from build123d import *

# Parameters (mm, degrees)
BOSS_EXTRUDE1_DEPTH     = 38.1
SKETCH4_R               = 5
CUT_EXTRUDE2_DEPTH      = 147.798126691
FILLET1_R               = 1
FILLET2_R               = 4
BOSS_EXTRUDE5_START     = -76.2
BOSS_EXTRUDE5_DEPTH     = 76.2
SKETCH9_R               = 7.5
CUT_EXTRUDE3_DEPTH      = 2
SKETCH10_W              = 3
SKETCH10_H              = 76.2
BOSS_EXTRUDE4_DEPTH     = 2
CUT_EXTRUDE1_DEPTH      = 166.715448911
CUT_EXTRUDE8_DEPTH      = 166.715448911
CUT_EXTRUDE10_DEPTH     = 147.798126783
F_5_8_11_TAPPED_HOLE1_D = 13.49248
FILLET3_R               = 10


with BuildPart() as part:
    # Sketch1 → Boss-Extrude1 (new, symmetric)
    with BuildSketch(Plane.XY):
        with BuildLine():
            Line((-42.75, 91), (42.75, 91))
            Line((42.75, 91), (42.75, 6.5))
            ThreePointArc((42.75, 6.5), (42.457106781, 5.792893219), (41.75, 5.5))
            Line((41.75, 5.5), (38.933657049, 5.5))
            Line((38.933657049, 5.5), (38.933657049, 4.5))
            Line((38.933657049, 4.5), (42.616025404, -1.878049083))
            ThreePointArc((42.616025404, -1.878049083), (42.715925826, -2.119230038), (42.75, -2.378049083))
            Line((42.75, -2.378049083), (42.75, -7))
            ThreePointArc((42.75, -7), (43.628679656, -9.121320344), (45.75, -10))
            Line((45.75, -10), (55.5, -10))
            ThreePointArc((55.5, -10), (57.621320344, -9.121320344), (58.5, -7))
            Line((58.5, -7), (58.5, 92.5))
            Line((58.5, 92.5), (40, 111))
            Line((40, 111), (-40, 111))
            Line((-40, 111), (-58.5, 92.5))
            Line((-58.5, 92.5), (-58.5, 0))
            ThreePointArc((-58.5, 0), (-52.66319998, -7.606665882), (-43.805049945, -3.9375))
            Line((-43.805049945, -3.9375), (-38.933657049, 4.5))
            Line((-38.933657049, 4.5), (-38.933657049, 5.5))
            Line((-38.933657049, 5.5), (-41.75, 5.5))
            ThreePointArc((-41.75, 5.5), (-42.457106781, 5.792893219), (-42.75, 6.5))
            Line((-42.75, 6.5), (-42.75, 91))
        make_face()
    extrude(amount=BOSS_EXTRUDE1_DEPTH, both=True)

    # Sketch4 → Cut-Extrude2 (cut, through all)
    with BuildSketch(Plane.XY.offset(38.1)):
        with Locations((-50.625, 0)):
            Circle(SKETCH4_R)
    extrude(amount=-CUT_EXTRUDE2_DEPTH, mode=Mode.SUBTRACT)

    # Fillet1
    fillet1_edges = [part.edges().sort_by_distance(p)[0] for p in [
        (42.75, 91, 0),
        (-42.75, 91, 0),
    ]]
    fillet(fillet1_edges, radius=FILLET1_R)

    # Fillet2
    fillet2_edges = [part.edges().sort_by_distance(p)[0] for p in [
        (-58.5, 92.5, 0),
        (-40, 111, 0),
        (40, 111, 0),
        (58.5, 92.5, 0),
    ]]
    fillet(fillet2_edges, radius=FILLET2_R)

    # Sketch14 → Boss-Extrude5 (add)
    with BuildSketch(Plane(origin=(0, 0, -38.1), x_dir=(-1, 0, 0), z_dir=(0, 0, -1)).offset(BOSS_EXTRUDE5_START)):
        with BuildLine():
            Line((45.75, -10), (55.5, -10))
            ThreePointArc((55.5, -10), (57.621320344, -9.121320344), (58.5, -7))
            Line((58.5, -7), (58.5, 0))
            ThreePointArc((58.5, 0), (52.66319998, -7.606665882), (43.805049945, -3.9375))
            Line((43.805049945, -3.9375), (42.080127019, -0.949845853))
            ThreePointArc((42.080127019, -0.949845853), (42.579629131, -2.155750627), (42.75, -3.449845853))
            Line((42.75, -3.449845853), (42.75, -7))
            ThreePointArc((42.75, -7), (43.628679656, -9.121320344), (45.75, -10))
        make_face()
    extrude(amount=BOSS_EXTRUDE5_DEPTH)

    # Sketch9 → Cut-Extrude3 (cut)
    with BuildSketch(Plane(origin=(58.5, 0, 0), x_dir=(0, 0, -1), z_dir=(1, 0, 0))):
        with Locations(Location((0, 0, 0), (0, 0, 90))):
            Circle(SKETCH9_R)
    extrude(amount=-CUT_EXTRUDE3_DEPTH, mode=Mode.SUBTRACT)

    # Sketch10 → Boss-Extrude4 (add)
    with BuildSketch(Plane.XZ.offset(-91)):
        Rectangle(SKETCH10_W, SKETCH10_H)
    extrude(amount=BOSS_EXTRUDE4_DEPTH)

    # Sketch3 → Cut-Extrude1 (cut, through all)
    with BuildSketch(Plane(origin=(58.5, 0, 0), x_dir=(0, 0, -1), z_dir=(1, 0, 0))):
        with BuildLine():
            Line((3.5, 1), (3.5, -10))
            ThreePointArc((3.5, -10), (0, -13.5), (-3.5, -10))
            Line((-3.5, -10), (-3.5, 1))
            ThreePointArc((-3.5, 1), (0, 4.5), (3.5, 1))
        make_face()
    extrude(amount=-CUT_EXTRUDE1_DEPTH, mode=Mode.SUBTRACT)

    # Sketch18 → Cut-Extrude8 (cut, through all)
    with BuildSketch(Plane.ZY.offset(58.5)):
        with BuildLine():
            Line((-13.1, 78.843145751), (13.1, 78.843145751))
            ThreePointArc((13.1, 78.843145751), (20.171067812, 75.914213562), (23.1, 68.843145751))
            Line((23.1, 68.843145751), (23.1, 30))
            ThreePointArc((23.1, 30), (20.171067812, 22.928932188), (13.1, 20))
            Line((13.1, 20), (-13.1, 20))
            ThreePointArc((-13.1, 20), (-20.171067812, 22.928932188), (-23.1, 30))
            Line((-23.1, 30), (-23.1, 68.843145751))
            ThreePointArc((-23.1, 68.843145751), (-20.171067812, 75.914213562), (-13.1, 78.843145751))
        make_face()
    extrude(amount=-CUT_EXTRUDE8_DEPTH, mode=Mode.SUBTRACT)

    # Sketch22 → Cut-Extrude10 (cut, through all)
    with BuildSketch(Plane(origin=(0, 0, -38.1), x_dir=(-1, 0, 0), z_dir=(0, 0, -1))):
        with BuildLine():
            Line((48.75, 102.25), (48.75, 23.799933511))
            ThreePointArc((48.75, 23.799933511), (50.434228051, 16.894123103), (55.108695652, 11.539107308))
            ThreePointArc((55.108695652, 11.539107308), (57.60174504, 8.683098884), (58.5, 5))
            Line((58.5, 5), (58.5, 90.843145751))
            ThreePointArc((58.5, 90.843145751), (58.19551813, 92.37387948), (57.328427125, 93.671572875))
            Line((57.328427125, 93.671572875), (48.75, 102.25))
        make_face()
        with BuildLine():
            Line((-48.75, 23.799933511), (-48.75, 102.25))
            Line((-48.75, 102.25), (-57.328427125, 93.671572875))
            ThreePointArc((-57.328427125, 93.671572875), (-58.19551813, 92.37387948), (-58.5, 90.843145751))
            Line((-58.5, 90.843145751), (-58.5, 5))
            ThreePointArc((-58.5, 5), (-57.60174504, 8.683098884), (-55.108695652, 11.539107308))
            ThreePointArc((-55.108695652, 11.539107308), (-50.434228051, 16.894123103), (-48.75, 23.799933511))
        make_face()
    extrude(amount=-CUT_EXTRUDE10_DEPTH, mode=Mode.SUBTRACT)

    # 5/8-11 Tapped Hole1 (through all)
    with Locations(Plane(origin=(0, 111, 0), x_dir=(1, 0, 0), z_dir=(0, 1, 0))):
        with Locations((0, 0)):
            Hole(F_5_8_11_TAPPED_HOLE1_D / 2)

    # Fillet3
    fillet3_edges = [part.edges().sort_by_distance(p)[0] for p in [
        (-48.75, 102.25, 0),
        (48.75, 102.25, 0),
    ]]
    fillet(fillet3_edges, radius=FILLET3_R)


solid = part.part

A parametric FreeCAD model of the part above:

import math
import FreeCAD as App
import Part
import Sketcher

V = App.Vector
Q = App.Units.Quantity


def edges_at(feature, points):
    """Names of the edges that pass closest to the given points."""
    edges = feature.Shape.Edges
    near = lambda p: min(range(len(edges)), key=lambda i: edges[i].distToShape(Part.Vertex(*p))[0])
    return sorted({f"Edge{near(p) + 1}" for p in points})

doc = App.newDocument("Part")
params = doc.addObject("Spreadsheet::Sheet", "Params")
for row, (alias, value) in enumerate([
    ("sketch1_radius", "1 mm"),
    ("sketch1_radius2", "3 mm"),
    ("sketch1_width", "80 mm"),
    ("sketch1_height", "1 mm"),
    ("sketch1_width2", "85.5 mm"),
    ("pad1_length", "76.2 mm"),
    ("sketch2_diameter", "10 mm"),
    ("fillet_radius", "1 mm"),
    ("fillet2_radius", "4 mm"),
    ("sketch3_radius", "3 mm"),
    ("sketch3_radius2", "5 mm"),
    ("sketch3_height", "7 mm"),
    ("sketch3_width", "9.75 mm"),
    ("pad2_length", "76.2 mm"),
    ("sketch4_diameter", "15 mm"),
    ("pocket2_length", "2 mm"),
    ("sketch5_width", "3 mm"),
    ("sketch5_height", "76.2 mm"),
    ("pad3_length", "2 mm"),
    ("sketch6_radius", "3.5 mm"),
    ("sketch6_width", "11 mm"),
    ("sketch7_radius", "10 mm"),
    ("sketch7_height", "26.2 mm"),
    ("sketch8_radius", "15 mm"),
    ("sketch8_radius2", "8 mm"),
    ("sketch8_radius3", "4 mm"),
    ("hole_diameter", "13.49248 mm"),
    ("fillet3_radius", "10 mm"),
], start=1):
    params.set(f"A{row}", alias)
    params.set(f"B{row}", "=" + value)
    params.setAlias(f"B{row}", alias)

body = doc.addObject("PartDesign::Body", "Body")

# Sketch on XY plane
sketch1 = doc.addObject("Sketcher::SketchObject", "Sketch")
body.addObject(sketch1)
sketch1.AttachmentSupport = (doc.XY_Plane, [""])
sketch1.MapMode = "FlatFace"
sketch1.addGeometry(Part.LineSegment(V(-42.8, 91, 0), V(42.8, 91, 0)), False)
sketch1.addGeometry(Part.LineSegment(V(42.8, 91, 0), V(42.8, 6.5, 0)), False)
sketch1.addGeometry(Part.ArcOfCircle(Part.Circle(V(41.7, 6.5, 0), V(0, 0, 1), 1), math.radians(-90), math.radians(0)), False)
sketch1.addGeometry(Part.LineSegment(V(41.8, 5.5, 0), V(38.9, 5.5, 0)), False)
sketch1.addGeometry(Part.LineSegment(V(38.9, 5.5, 0), V(38.9, 4.5, 0)), False)
sketch1.addGeometry(Part.LineSegment(V(38.9, 4.5, 0), V(42.6, -1.9, 0)), False)
sketch1.addGeometry(Part.ArcOfCircle(Part.Circle(V(41.7, -2.4, 0), V(0, 0, 1), 1), math.radians(0), math.radians(30)), False)
sketch1.addGeometry(Part.LineSegment(V(42.8, -2.4, 0), V(42.8, -7, 0)), False)
sketch1.addGeometry(Part.ArcOfCircle(Part.Circle(V(45.7, -7, 0), V(0, 0, 1), 3), math.radians(180), math.radians(270)), False)
sketch1.addGeometry(Part.LineSegment(V(45.8, -10, 0), V(55.5, -10, 0)), False)
sketch1.addGeometry(Part.ArcOfCircle(Part.Circle(V(55.5, -7, 0), V(0, 0, 1), 3), math.radians(-90), math.radians(0)), False)
sketch1.addGeometry(Part.LineSegment(V(58.5, -7, 0), V(58.5, 92.5, 0)), False)
sketch1.addGeometry(Part.LineSegment(V(58.5, 92.5, 0), V(40, 111, 0)), False)
sketch1.addGeometry(Part.LineSegment(V(40, 111, 0), V(-40, 111, 0)), False)
sketch1.addGeometry(Part.LineSegment(V(-40, 111, 0), V(-58.5, 92.5, 0)), False)
sketch1.addGeometry(Part.LineSegment(V(-58.5, 92.5, 0), V(-58.5, 0, 0)), False)
sketch1.addGeometry(Part.ArcOfCircle(Part.Circle(V(-50.6, 0, 0), V(0, 0, 1), 7.9), math.radians(180), math.radians(330)), False)
sketch1.addGeometry(Part.LineSegment(V(-43.8, -3.9, 0), V(-38.9, 4.5, 0)), False)
sketch1.addGeometry(Part.LineSegment(V(-38.9, 4.5, 0), V(-38.9, 5.5, 0)), False)
sketch1.addGeometry(Part.LineSegment(V(-38.9, 5.5, 0), V(-41.8, 5.5, 0)), False)
sketch1.addGeometry(Part.ArcOfCircle(Part.Circle(V(-41.7, 6.5, 0), V(0, 0, 1), 1), math.radians(-180), math.radians(-90)), False)
sketch1.addGeometry(Part.LineSegment(V(-42.8, 6.5, 0), V(-42.8, 91, 0)), False)
sketch1.addConstraint(Sketcher.Constraint("Coincident", 0, 2, 1, 1))
sketch1.addConstraint(Sketcher.Constraint("Tangent", 1, 2, 2, 2))
sketch1.addConstraint(Sketcher.Constraint("Tangent", 2, 1, 3, 1))
sketch1.addConstraint(Sketcher.Constraint("Coincident", 3, 2, 4, 1))
sketch1.addConstraint(Sketcher.Constraint("Coincident", 4, 2, 5, 1))
sketch1.addConstraint(Sketcher.Constraint("Tangent", 5, 2, 6, 2))
sketch1.addConstraint(Sketcher.Constraint("Tangent", 6, 1, 7, 1))
sketch1.addConstraint(Sketcher.Constraint("Tangent", 7, 2, 8, 1))
sketch1.addConstraint(Sketcher.Constraint("Tangent", 8, 2, 9, 1))
sketch1.addConstraint(Sketcher.Constraint("Tangent", 9, 2, 10, 1))
sketch1.addConstraint(Sketcher.Constraint("Tangent", 10, 2, 11, 1))
sketch1.addConstraint(Sketcher.Constraint("Coincident", 11, 2, 12, 1))
sketch1.addConstraint(Sketcher.Constraint("Coincident", 12, 2, 13, 1))
sketch1.addConstraint(Sketcher.Constraint("Coincident", 13, 2, 14, 1))
sketch1.addConstraint(Sketcher.Constraint("Coincident", 14, 2, 15, 1))
sketch1.addConstraint(Sketcher.Constraint("Tangent", 15, 2, 16, 1))
sketch1.addConstraint(Sketcher.Constraint("Tangent", 16, 2, 17, 1))
sketch1.addConstraint(Sketcher.Constraint("Coincident", 17, 2, 18, 1))
sketch1.addConstraint(Sketcher.Constraint("Coincident", 18, 2, 19, 1))
sketch1.addConstraint(Sketcher.Constraint("Tangent", 19, 2, 20, 2))
sketch1.addConstraint(Sketcher.Constraint("Tangent", 20, 1, 21, 1))
sketch1.addConstraint(Sketcher.Constraint("Coincident", 21, 2, 0, 1))
sketch1.addConstraint(Sketcher.Constraint("Horizontal", 0))
sketch1.addConstraint(Sketcher.Constraint("Vertical", 1))
sketch1.addConstraint(Sketcher.Constraint("Horizontal", 3))
sketch1.addConstraint(Sketcher.Constraint("Vertical", 4))
sketch1.addConstraint(Sketcher.Constraint("Vertical", 7))
sketch1.addConstraint(Sketcher.Constraint("Horizontal", 9))
sketch1.addConstraint(Sketcher.Constraint("Vertical", 11))
sketch1.addConstraint(Sketcher.Constraint("Horizontal", 13))
sketch1.addConstraint(Sketcher.Constraint("Vertical", 15))
sketch1.addConstraint(Sketcher.Constraint("Vertical", 18))
sketch1.addConstraint(Sketcher.Constraint("Horizontal", 19))
sketch1.addConstraint(Sketcher.Constraint("Vertical", 21))
sketch1.addConstraint(Sketcher.Constraint("Equal", 2, 6))
sketch1.addConstraint(Sketcher.Constraint("Equal", 8, 10))
sketch1.addConstraint(Sketcher.Constraint("Equal", 6, 20))
sketch1.addConstraint(Sketcher.Constraint("Symmetric", 2, 3, 20, 3, -2))
sketch1.addConstraint(Sketcher.Constraint("Symmetric", 11, 2, 14, 2, -2))
sketch1.addConstraint(Sketcher.Constraint("Symmetric", 4, 2, 17, 2, -2))
sketch1.addConstraint(Sketcher.Constraint("PointOnObject", 16, 3, -1))
sketch1.addConstraint(Sketcher.Constraint("Perpendicular", 12, 14))
sketch1.addConstraint(Sketcher.Constraint("Vertical", 2, 3, 6, 3))
sketch1.addConstraint(Sketcher.Constraint("Equal", 12, 14))
sketch1.addConstraint(Sketcher.Constraint("Radius", 2, 1.0))
sketch1.addConstraint(Sketcher.Constraint("Radius", 8, 3.0))
sketch1.addConstraint(Sketcher.Constraint("DistanceX", 13, 2, 13, 1, 80.0))
sketch1.addConstraint(Sketcher.Constraint("DistanceY", 4, 2, 4, 1, 1.0))
sketch1.addConstraint(Sketcher.Constraint("Angle", 5, Q("-60 deg")))
sketch1.addConstraint(Sketcher.Constraint("Angle", 17, Q("60 deg")))
sketch1.addConstraint(Sketcher.Constraint("DistanceX", 0, 1, 0, 2, 85.5))
sketch1.addConstraint(Sketcher.Constraint("DistanceY", 1, 2, 1, 1, 84.5))
sketch1.addConstraint(Sketcher.Constraint("DistanceY", 11, 1, 11, 2, 99.5))
sketch1.addConstraint(Sketcher.Constraint("DistanceY", 15, 2, 15, 1, 92.5))
sketch1.addConstraint(Sketcher.Constraint("DistanceY", -1, 1, 0, 2, 91.0))
sketch1.addConstraint(Sketcher.Constraint("DistanceY", -1, 1, 12, 2, 111.0))
sketch1.addConstraint(Sketcher.Constraint("Radius", 16, 7.875))
sketch1.setExpression("Constraints[44]", "Params.sketch1_radius")
sketch1.setExpression("Constraints[45]", "Params.sketch1_radius2")
sketch1.setExpression("Constraints[46]", "Params.sketch1_width")
sketch1.setExpression("Constraints[47]", "Params.sketch1_height")
sketch1.setExpression("Constraints[50]", "Params.sketch1_width2")
pad1 = doc.addObject("PartDesign::Pad", "Pad")
body.addObject(pad1)
pad1.Profile = sketch1
pad1.setExpression("Length", "Params.pad1_length")
pad1.Midplane = True

# Sketch on XY plane
sketch2 = doc.addObject("Sketcher::SketchObject", "Sketch001")
body.addObject(sketch2)
sketch2.AttachmentSupport = (doc.XY_Plane, [""])
sketch2.MapMode = "FlatFace"
sketch2.AttachmentOffset = App.Placement(V(0, 0, 38.1), App.Rotation())
sketch2.addGeometry(Part.Circle(V(-51, 0, 0), V(0, 0, 1), 5), False)
sketch2.addConstraint(Sketcher.Constraint("PointOnObject", 0, 3, -1))
sketch2.addConstraint(Sketcher.Constraint("Diameter", 0, 10.0))
sketch2.addConstraint(Sketcher.Constraint("DistanceX", 0, 3, -1, 1, 50.625))
sketch2.setExpression("Constraints[1]", "Params.sketch2_diameter")
pocket1 = doc.addObject("PartDesign::Pocket", "Pocket")
body.addObject(pocket1)
pocket1.Profile = sketch2
pocket1.Type = "ThroughAll"
doc.recompute()

fillet = doc.addObject("PartDesign::Fillet", "Fillet")
body.addObject(fillet)
fillet.Base = (pocket1, edges_at(pocket1, [(42.75, 91, 0), (-42.75, 91, 0)]))
fillet.setExpression("Radius", "Params.fillet_radius")
doc.recompute()

fillet2 = doc.addObject("PartDesign::Fillet", "Fillet001")
body.addObject(fillet2)
fillet2.Base = (fillet, edges_at(fillet, [
    (-58.5, 92.5, 0),
    (-40, 111, 0),
    (40, 111, 0),
    (58.5, 92.5, 0),
]))
fillet2.setExpression("Radius", "Params.fillet2_radius")

# Sketch on XY plane
sketch3 = doc.addObject("Sketcher::SketchObject", "Sketch002")
body.addObject(sketch3)
sketch3.AttachmentSupport = (doc.XY_Plane, [""])
sketch3.MapMode = "FlatFace"
sketch3.AttachmentOffset = App.Placement(V(0, 0, 38.1), App.Rotation())
sketch3.addGeometry(Part.LineSegment(V(-45.8, -10, 0), V(-55.5, -10, 0)), False)
sketch3.addGeometry(Part.ArcOfCircle(Part.Circle(V(-55.5, -7, 0), V(0, 0, 1), 3), math.radians(180), math.radians(270)), False)
sketch3.addGeometry(Part.LineSegment(V(-58.5, -7, 0), V(-58.5, 0, 0)), False)
sketch3.addGeometry(Part.ArcOfCircle(Part.Circle(V(-50.6, 0, 0), V(0, 0, 1), 7.9), math.radians(180), math.radians(330)), False)
sketch3.addGeometry(Part.LineSegment(V(-43.8, -3.9, 0), V(-42.1, -0.9, 0)), False)
sketch3.addGeometry(Part.ArcOfCircle(Part.Circle(V(-37.7, -3.4, 0), V(0, 0, 1), 5), math.radians(150), math.radians(180)), False)
sketch3.addGeometry(Part.LineSegment(V(-42.8, -3.4, 0), V(-42.8, -7, 0)), False)
sketch3.addGeometry(Part.ArcOfCircle(Part.Circle(V(-45.7, -7, 0), V(0, 0, 1), 3), math.radians(-90), math.radians(0)), False)
sketch3.addConstraint(Sketcher.Constraint("Tangent", 0, 2, 1, 2))
sketch3.addConstraint(Sketcher.Constraint("Tangent", 1, 1, 2, 1))
sketch3.addConstraint(Sketcher.Constraint("Tangent", 2, 2, 3, 1))
sketch3.addConstraint(Sketcher.Constraint("Tangent", 3, 2, 4, 1))
sketch3.addConstraint(Sketcher.Constraint("Tangent", 4, 2, 5, 1))
sketch3.addConstraint(Sketcher.Constraint("Tangent", 5, 2, 6, 1))
sketch3.addConstraint(Sketcher.Constraint("Tangent", 6, 2, 7, 2))
sketch3.addConstraint(Sketcher.Constraint("Tangent", 7, 1, 0, 1))
sketch3.addConstraint(Sketcher.Constraint("Horizontal", 0))
sketch3.addConstraint(Sketcher.Constraint("Vertical", 2))
sketch3.addConstraint(Sketcher.Constraint("Vertical", 6))
sketch3.addConstraint(Sketcher.Constraint("Equal", 1, 7))
sketch3.addConstraint(Sketcher.Constraint("PointOnObject", 3, 3, -1))
sketch3.addConstraint(Sketcher.Constraint("Radius", 1, 3.0))
sketch3.addConstraint(Sketcher.Constraint("Radius", 5, 5.0))
sketch3.addConstraint(Sketcher.Constraint("DistanceY", 2, 1, 2, 2, 7.0))
sketch3.addConstraint(Sketcher.Constraint("Angle", 4, Q("60 deg")))
sketch3.addConstraint(Sketcher.Constraint("Radius", 3, 7.875))
sketch3.addConstraint(Sketcher.Constraint("DistanceX", 0, 2, 0, 1, 9.75))
sketch3.addConstraint(Sketcher.Constraint("DistanceX", 1, 3, -1, 1, 55.5))
sketch3.setExpression("Constraints[13]", "Params.sketch3_radius")
sketch3.setExpression("Constraints[14]", "Params.sketch3_radius2")
sketch3.setExpression("Constraints[15]", "Params.sketch3_height")
sketch3.setExpression("Constraints[18]", "Params.sketch3_width")
pad2 = doc.addObject("PartDesign::Pad", "Pad001")
body.addObject(pad2)
pad2.Profile = sketch3
pad2.setExpression("Length", "Params.pad2_length")
pad2.Reversed = True

# Sketch on YZ plane
sketch4 = doc.addObject("Sketcher::SketchObject", "Sketch003")
body.addObject(sketch4)
sketch4.AttachmentSupport = (doc.YZ_Plane, [""])
sketch4.MapMode = "FlatFace"
sketch4.AttachmentOffset = App.Placement(V(0, 0, 58.5), App.Rotation())
sketch4.addGeometry(Part.Circle(V(0, 0, 0), V(0, 0, 1), 8), False)
sketch4.addConstraint(Sketcher.Constraint("Coincident", 0, 3, -1, 1))
sketch4.addConstraint(Sketcher.Constraint("Diameter", 0, 15.0))
sketch4.setExpression("Constraints[1]", "Params.sketch4_diameter")
pocket2 = doc.addObject("PartDesign::Pocket", "Pocket001")
body.addObject(pocket2)
pocket2.Profile = sketch4
pocket2.setExpression("Length", "Params.pocket2_length")

# Sketch on XZ plane
sketch5 = doc.addObject("Sketcher::SketchObject", "Sketch004")
body.addObject(sketch5)
sketch5.AttachmentSupport = (doc.XZ_Plane, [""])
sketch5.MapMode = "FlatFace"
sketch5.AttachmentOffset = App.Placement(V(0, 0, -91), App.Rotation())
sketch5.addGeometry(Part.LineSegment(V(-1.5, 38.1, 0), V(-1.5, -38.1, 0)), False)
sketch5.addGeometry(Part.LineSegment(V(-1.5, -38.1, 0), V(1.5, -38.1, 0)), False)
sketch5.addGeometry(Part.LineSegment(V(1.5, -38.1, 0), V(1.5, 38.1, 0)), False)
sketch5.addGeometry(Part.LineSegment(V(1.5, 38.1, 0), V(-1.5, 38.1, 0)), False)
sketch5.addConstraint(Sketcher.Constraint("Coincident", 0, 2, 1, 1))
sketch5.addConstraint(Sketcher.Constraint("Coincident", 1, 2, 2, 1))
sketch5.addConstraint(Sketcher.Constraint("Coincident", 2, 2, 3, 1))
sketch5.addConstraint(Sketcher.Constraint("Coincident", 3, 2, 0, 1))
sketch5.addConstraint(Sketcher.Constraint("Vertical", 0))
sketch5.addConstraint(Sketcher.Constraint("Horizontal", 1))
sketch5.addConstraint(Sketcher.Constraint("Vertical", 2))
sketch5.addConstraint(Sketcher.Constraint("Horizontal", 3))
sketch5.addConstraint(Sketcher.Constraint("Symmetric", 0, 2, 2, 2, -1, 1))
sketch5.addConstraint(Sketcher.Constraint("DistanceX", 1, 1, 1, 2, 3.0))
sketch5.addConstraint(Sketcher.Constraint("DistanceY", 0, 2, 0, 1, 76.2))
sketch5.setExpression("Constraints[9]", "Params.sketch5_width")
sketch5.setExpression("Constraints[10]", "Params.sketch5_height")
pad3 = doc.addObject("PartDesign::Pad", "Pad002")
body.addObject(pad3)
pad3.Profile = sketch5
pad3.setExpression("Length", "Params.pad3_length")

# Sketch on YZ plane
sketch6 = doc.addObject("Sketcher::SketchObject", "Sketch005")
body.addObject(sketch6)
sketch6.AttachmentSupport = (doc.YZ_Plane, [""])
sketch6.MapMode = "FlatFace"
sketch6.AttachmentOffset = App.Placement(V(0, 0, 58.5), App.Rotation())
sketch6.addGeometry(Part.LineSegment(V(-10, -3.5, 0), V(1, -3.5, 0)), False)
sketch6.addGeometry(Part.ArcOfCircle(Part.Circle(V(1, 0, 0), V(0, 0, 1), 3.5), math.radians(-90), math.radians(90)), False)
sketch6.addGeometry(Part.LineSegment(V(1, 3.5, 0), V(-10, 3.5, 0)), False)
sketch6.addGeometry(Part.ArcOfCircle(Part.Circle(V(-10, 0, 0), V(0, 0, 1), 3.5), math.radians(90), math.radians(270)), False)
sketch6.addConstraint(Sketcher.Constraint("Tangent", 0, 2, 1, 1))
sketch6.addConstraint(Sketcher.Constraint("Tangent", 1, 2, 2, 1))
sketch6.addConstraint(Sketcher.Constraint("Tangent", 2, 2, 3, 1))
sketch6.addConstraint(Sketcher.Constraint("Tangent", 3, 2, 0, 1))
sketch6.addConstraint(Sketcher.Constraint("Horizontal", 0))
sketch6.addConstraint(Sketcher.Constraint("Horizontal", 2))
sketch6.addConstraint(Sketcher.Constraint("PointOnObject", 1, 3, -1))
sketch6.addConstraint(Sketcher.Constraint("Radius", 1, 3.5))
sketch6.addConstraint(Sketcher.Constraint("DistanceX", 0, 1, 0, 2, 11.0))
sketch6.addConstraint(Sketcher.Constraint("DistanceX", -1, 1, 1, 3, 1.0))
sketch6.setExpression("Constraints[7]", "Params.sketch6_radius")
sketch6.setExpression("Constraints[8]", "Params.sketch6_width")
pocket3 = doc.addObject("PartDesign::Pocket", "Pocket002")
body.addObject(pocket3)
pocket3.Profile = sketch6
pocket3.Type = "ThroughAll"

# Sketch on YZ plane
sketch7 = doc.addObject("Sketcher::SketchObject", "Sketch006")
body.addObject(sketch7)
sketch7.AttachmentSupport = (doc.YZ_Plane, [""])
sketch7.MapMode = "FlatFace"
sketch7.AttachmentOffset = App.Placement(V(0, 0, -58.5), App.Rotation())
sketch7.addGeometry(Part.LineSegment(V(79, 13, 0), V(79, -13, 0)), False)
sketch7.addGeometry(Part.ArcOfCircle(Part.Circle(V(69, -13, 0), V(0, 0, 1), 10), math.radians(-90), math.radians(0)), False)
sketch7.addGeometry(Part.LineSegment(V(69, -23, 0), V(30, -23, 0)), False)
sketch7.addGeometry(Part.ArcOfCircle(Part.Circle(V(30, -13, 0), V(0, 0, 1), 10), math.radians(180), math.radians(270)), False)
sketch7.addGeometry(Part.LineSegment(V(20, -13, 0), V(20, 13, 0)), False)
sketch7.addGeometry(Part.ArcOfCircle(Part.Circle(V(30, 13, 0), V(0, 0, 1), 10), math.radians(90), math.radians(180)), False)
sketch7.addGeometry(Part.LineSegment(V(30, 23, 0), V(69, 23, 0)), False)
sketch7.addGeometry(Part.ArcOfCircle(Part.Circle(V(69, 13, 0), V(0, 0, 1), 10), math.radians(0), math.radians(90)), False)
sketch7.addConstraint(Sketcher.Constraint("Tangent", 0, 2, 1, 2))
sketch7.addConstraint(Sketcher.Constraint("Tangent", 1, 1, 2, 1))
sketch7.addConstraint(Sketcher.Constraint("Tangent", 2, 2, 3, 2))
sketch7.addConstraint(Sketcher.Constraint("Tangent", 3, 1, 4, 1))
sketch7.addConstraint(Sketcher.Constraint("Tangent", 4, 2, 5, 2))
sketch7.addConstraint(Sketcher.Constraint("Tangent", 5, 1, 6, 1))
sketch7.addConstraint(Sketcher.Constraint("Tangent", 6, 2, 7, 2))
sketch7.addConstraint(Sketcher.Constraint("Tangent", 7, 1, 0, 1))
sketch7.addConstraint(Sketcher.Constraint("Vertical", 0))
sketch7.addConstraint(Sketcher.Constraint("Horizontal", 2))
sketch7.addConstraint(Sketcher.Constraint("Vertical", 4))
sketch7.addConstraint(Sketcher.Constraint("Horizontal", 6))
sketch7.addConstraint(Sketcher.Constraint("Equal", 1, 3))
sketch7.addConstraint(Sketcher.Constraint("Equal", 3, 5))
sketch7.addConstraint(Sketcher.Constraint("Equal", 5, 7))
sketch7.addConstraint(Sketcher.Constraint("Radius", 1, 10.0))
sketch7.addConstraint(Sketcher.Constraint("DistanceY", 0, 2, 0, 1, 26.2))
sketch7.addConstraint(Sketcher.Constraint("DistanceX", -1, 1, 3, 3, 30.0))
sketch7.addConstraint(Sketcher.Constraint("DistanceY", 1, 3, -1, 1, 13.1))
sketch7.addConstraint(Sketcher.Constraint("DistanceX", 2, 2, 2, 1, 38.843146))
sketch7.setExpression("Constraints[15]", "Params.sketch7_radius")
sketch7.setExpression("Constraints[16]", "Params.sketch7_height")
pocket4 = doc.addObject("PartDesign::Pocket", "Pocket003")
body.addObject(pocket4)
pocket4.Profile = sketch7
pocket4.Type = "ThroughAll"
pocket4.Reversed = True

# Sketch on XY plane
sketch8 = doc.addObject("Sketcher::SketchObject", "Sketch007")
body.addObject(sketch8)
sketch8.AttachmentSupport = (doc.XY_Plane, [""])
sketch8.MapMode = "FlatFace"
sketch8.AttachmentOffset = App.Placement(V(0, 0, -38.1), App.Rotation())
sketch8.addGeometry(Part.LineSegment(V(-48.8, 102.2, 0), V(-48.8, 23.8, 0)), False)
sketch8.addGeometry(Part.ArcOfCircle(Part.Circle(V(-63.8, 23.8, 0), V(0, 0, 1), 15), math.radians(-55), math.radians(0)), False)
sketch8.addGeometry(Part.ArcOfCircle(Part.Circle(V(-50.5, 5, 0), V(0, 0, 1), 8), math.radians(125), math.radians(180)), False)
sketch8.addGeometry(Part.LineSegment(V(-58.5, 5, 0), V(-58.5, 90.8, 0)), False)
sketch8.addGeometry(Part.ArcOfCircle(Part.Circle(V(-54.5, 90.8, 0), V(0, 0, 1), 4), math.radians(135), math.radians(180)), False)
sketch8.addGeometry(Part.LineSegment(V(-57.3, 93.7, 0), V(-48.8, 102.2, 0)), False)
sketch8.addGeometry(Part.LineSegment(V(48.8, 23.8, 0), V(48.8, 102.2, 0)), False)
sketch8.addGeometry(Part.LineSegment(V(48.8, 102.2, 0), V(57.3, 93.7, 0)), False)
sketch8.addGeometry(Part.ArcOfCircle(Part.Circle(V(54.5, 90.8, 0), V(0, 0, 1), 4), math.radians(0), math.radians(45)), False)
sketch8.addGeometry(Part.LineSegment(V(58.5, 90.8, 0), V(58.5, 5, 0)), False)
sketch8.addGeometry(Part.ArcOfCircle(Part.Circle(V(50.5, 5, 0), V(0, 0, 1), 8), math.radians(0), math.radians(55)), False)
sketch8.addGeometry(Part.ArcOfCircle(Part.Circle(V(63.8, 23.8, 0), V(0, 0, 1), 15), math.radians(-180), math.radians(-125)), False)
sketch8.addConstraint(Sketcher.Constraint("Tangent", 0, 2, 1, 2))
sketch8.addConstraint(Sketcher.Constraint("Tangent", 1, 1, 2, 1))
sketch8.addConstraint(Sketcher.Constraint("Tangent", 2, 2, 3, 1))
sketch8.addConstraint(Sketcher.Constraint("Tangent", 3, 2, 4, 2))
sketch8.addConstraint(Sketcher.Constraint("Tangent", 4, 1, 5, 1))
sketch8.addConstraint(Sketcher.Constraint("Coincident", 5, 2, 0, 1))
sketch8.addConstraint(Sketcher.Constraint("Coincident", 6, 2, 7, 1))
sketch8.addConstraint(Sketcher.Constraint("Tangent", 7, 2, 8, 2))
sketch8.addConstraint(Sketcher.Constraint("Tangent", 8, 1, 9, 1))
sketch8.addConstraint(Sketcher.Constraint("Tangent", 9, 2, 10, 1))
sketch8.addConstraint(Sketcher.Constraint("Tangent", 10, 2, 11, 2))
sketch8.addConstraint(Sketcher.Constraint("Tangent", 11, 1, 6, 1))
sketch8.addConstraint(Sketcher.Constraint("Vertical", 0))
sketch8.addConstraint(Sketcher.Constraint("Vertical", 3))
sketch8.addConstraint(Sketcher.Constraint("Vertical", 6))
sketch8.addConstraint(Sketcher.Constraint("Vertical", 9))
sketch8.addConstraint(Sketcher.Constraint("Equal", 4, 8))
sketch8.addConstraint(Sketcher.Constraint("Equal", 2, 10))
sketch8.addConstraint(Sketcher.Constraint("Equal", 1, 11))
sketch8.addConstraint(Sketcher.Constraint("Symmetric", 4, 3, 8, 3, -2))
sketch8.addConstraint(Sketcher.Constraint("Symmetric", 1, 3, 11, 3, -2))
sketch8.addConstraint(Sketcher.Constraint("Perpendicular", 5, 7))
sketch8.addConstraint(Sketcher.Constraint("Horizontal", 5, 2, 6, 2))
sketch8.addConstraint(Sketcher.Constraint("Radius", 1, 15.0))
sketch8.addConstraint(Sketcher.Constraint("Radius", 2, 8.0))
sketch8.addConstraint(Sketcher.Constraint("Radius", 4, 4.0))
sketch8.addConstraint(Sketcher.Constraint("DistanceY", -1, 1, 2, 3, 5.0))
sketch8.addConstraint(Sketcher.Constraint("DistanceX", 4, 3, 8, 3, 109.0))
sketch8.addConstraint(Sketcher.Constraint("DistanceX", 1, 3, 11, 3, 127.5))
sketch8.addConstraint(Sketcher.Constraint("DistanceY", -1, 1, 5, 2, 102.25))
sketch8.setExpression("Constraints[23]", "Params.sketch8_radius")
sketch8.setExpression("Constraints[24]", "Params.sketch8_radius2")
sketch8.setExpression("Constraints[25]", "Params.sketch8_radius3")
pocket5 = doc.addObject("PartDesign::Pocket", "Pocket004")
body.addObject(pocket5)
pocket5.Profile = sketch8
pocket5.Type = "ThroughAll"
pocket5.Reversed = True

# Sketch on XZ plane
sketch9 = doc.addObject("Sketcher::SketchObject", "Sketch008")
body.addObject(sketch9)
sketch9.AttachmentSupport = (doc.XZ_Plane, [""])
sketch9.MapMode = "FlatFace"
sketch9.AttachmentOffset = App.Placement(V(0, 0, -111), App.Rotation())
sketch9.addGeometry(Part.Circle(V(0, 0, 0), V(0, 0, 1), 7), False)
sketch9.addConstraint(Sketcher.Constraint("Coincident", 0, 3, -1, 1))
sketch9.addConstraint(Sketcher.Constraint("Diameter", 0, 13.49248))
doc.recompute()
hole = doc.addObject("PartDesign::Hole", "Hole")
body.addObject(hole)
hole.Profile = sketch9
hole.ThreadType = "None"
hole.setExpression("Diameter", "Params.hole_diameter")
hole.DepthType = "ThroughAll"
hole.Reversed = True
doc.recompute()

fillet3 = doc.addObject("PartDesign::Fillet", "Fillet002")
body.addObject(fillet3)
fillet3.Base = (hole, edges_at(hole, [(-48.75, 102.25, 0), (48.75, 102.25, 0)]))
fillet3.setExpression("Radius", "Params.fillet3_radius")

doc.recompute()
